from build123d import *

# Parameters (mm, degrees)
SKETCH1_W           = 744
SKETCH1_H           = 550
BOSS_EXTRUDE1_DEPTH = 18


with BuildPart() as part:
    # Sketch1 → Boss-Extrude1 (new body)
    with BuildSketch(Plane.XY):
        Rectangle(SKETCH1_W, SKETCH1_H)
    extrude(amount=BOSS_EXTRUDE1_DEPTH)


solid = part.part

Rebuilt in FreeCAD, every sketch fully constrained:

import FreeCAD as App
import Part
import Sketcher

doc = App.newDocument("Part")
body = doc.addObject("PartDesign::Body", "Body")

# Sketch on XY plane
sketch1 = body.newObject("Sketcher::SketchObject", "Sketch")
sketch1.AttachmentSupport = (doc.getObject("XY_Plane"), [""])
sketch1.MapMode = "FlatFace"
sketch1.addGeometry([
    Part.LineSegment(App.Vector(-372, 275, 0), App.Vector(-372, -275, 0)),
    Part.LineSegment(App.Vector(-372, -275, 0), App.Vector(372, -275, 0)),
    Part.LineSegment(App.Vector(372, -275, 0), App.Vector(372, 275, 0)),
    Part.LineSegment(App.Vector(372, 275, 0), App.Vector(-372, 275, 0)),
], False)
sketch1.addConstraint([
    Sketcher.Constraint("Coincident", 0, 2, 1, 1),
    Sketcher.Constraint("Coincident", 1, 2, 2, 1),
    Sketcher.Constraint("Coincident", 2, 2, 3, 1),
    Sketcher.Constraint("Coincident", 3, 2, 0, 1),
    Sketcher.Constraint("Vertical", 0),
    Sketcher.Constraint("Horizontal", 1),
    Sketcher.Constraint("Vertical", 2),
    Sketcher.Constraint("Horizontal", 3),
    Sketcher.Constraint("Symmetric", 0, 2, 2, 2, -1, 1),
    Sketcher.Constraint("DistanceX", 1, 1, 1, 2, 744.0),
    Sketcher.Constraint("DistanceY", 0, 2, 0, 1, 550.0),
])
pad1 = body.newObject("PartDesign::Pad", "Pad")
pad1.Profile = sketch1
pad1.Length = 18

doc.recompute()
